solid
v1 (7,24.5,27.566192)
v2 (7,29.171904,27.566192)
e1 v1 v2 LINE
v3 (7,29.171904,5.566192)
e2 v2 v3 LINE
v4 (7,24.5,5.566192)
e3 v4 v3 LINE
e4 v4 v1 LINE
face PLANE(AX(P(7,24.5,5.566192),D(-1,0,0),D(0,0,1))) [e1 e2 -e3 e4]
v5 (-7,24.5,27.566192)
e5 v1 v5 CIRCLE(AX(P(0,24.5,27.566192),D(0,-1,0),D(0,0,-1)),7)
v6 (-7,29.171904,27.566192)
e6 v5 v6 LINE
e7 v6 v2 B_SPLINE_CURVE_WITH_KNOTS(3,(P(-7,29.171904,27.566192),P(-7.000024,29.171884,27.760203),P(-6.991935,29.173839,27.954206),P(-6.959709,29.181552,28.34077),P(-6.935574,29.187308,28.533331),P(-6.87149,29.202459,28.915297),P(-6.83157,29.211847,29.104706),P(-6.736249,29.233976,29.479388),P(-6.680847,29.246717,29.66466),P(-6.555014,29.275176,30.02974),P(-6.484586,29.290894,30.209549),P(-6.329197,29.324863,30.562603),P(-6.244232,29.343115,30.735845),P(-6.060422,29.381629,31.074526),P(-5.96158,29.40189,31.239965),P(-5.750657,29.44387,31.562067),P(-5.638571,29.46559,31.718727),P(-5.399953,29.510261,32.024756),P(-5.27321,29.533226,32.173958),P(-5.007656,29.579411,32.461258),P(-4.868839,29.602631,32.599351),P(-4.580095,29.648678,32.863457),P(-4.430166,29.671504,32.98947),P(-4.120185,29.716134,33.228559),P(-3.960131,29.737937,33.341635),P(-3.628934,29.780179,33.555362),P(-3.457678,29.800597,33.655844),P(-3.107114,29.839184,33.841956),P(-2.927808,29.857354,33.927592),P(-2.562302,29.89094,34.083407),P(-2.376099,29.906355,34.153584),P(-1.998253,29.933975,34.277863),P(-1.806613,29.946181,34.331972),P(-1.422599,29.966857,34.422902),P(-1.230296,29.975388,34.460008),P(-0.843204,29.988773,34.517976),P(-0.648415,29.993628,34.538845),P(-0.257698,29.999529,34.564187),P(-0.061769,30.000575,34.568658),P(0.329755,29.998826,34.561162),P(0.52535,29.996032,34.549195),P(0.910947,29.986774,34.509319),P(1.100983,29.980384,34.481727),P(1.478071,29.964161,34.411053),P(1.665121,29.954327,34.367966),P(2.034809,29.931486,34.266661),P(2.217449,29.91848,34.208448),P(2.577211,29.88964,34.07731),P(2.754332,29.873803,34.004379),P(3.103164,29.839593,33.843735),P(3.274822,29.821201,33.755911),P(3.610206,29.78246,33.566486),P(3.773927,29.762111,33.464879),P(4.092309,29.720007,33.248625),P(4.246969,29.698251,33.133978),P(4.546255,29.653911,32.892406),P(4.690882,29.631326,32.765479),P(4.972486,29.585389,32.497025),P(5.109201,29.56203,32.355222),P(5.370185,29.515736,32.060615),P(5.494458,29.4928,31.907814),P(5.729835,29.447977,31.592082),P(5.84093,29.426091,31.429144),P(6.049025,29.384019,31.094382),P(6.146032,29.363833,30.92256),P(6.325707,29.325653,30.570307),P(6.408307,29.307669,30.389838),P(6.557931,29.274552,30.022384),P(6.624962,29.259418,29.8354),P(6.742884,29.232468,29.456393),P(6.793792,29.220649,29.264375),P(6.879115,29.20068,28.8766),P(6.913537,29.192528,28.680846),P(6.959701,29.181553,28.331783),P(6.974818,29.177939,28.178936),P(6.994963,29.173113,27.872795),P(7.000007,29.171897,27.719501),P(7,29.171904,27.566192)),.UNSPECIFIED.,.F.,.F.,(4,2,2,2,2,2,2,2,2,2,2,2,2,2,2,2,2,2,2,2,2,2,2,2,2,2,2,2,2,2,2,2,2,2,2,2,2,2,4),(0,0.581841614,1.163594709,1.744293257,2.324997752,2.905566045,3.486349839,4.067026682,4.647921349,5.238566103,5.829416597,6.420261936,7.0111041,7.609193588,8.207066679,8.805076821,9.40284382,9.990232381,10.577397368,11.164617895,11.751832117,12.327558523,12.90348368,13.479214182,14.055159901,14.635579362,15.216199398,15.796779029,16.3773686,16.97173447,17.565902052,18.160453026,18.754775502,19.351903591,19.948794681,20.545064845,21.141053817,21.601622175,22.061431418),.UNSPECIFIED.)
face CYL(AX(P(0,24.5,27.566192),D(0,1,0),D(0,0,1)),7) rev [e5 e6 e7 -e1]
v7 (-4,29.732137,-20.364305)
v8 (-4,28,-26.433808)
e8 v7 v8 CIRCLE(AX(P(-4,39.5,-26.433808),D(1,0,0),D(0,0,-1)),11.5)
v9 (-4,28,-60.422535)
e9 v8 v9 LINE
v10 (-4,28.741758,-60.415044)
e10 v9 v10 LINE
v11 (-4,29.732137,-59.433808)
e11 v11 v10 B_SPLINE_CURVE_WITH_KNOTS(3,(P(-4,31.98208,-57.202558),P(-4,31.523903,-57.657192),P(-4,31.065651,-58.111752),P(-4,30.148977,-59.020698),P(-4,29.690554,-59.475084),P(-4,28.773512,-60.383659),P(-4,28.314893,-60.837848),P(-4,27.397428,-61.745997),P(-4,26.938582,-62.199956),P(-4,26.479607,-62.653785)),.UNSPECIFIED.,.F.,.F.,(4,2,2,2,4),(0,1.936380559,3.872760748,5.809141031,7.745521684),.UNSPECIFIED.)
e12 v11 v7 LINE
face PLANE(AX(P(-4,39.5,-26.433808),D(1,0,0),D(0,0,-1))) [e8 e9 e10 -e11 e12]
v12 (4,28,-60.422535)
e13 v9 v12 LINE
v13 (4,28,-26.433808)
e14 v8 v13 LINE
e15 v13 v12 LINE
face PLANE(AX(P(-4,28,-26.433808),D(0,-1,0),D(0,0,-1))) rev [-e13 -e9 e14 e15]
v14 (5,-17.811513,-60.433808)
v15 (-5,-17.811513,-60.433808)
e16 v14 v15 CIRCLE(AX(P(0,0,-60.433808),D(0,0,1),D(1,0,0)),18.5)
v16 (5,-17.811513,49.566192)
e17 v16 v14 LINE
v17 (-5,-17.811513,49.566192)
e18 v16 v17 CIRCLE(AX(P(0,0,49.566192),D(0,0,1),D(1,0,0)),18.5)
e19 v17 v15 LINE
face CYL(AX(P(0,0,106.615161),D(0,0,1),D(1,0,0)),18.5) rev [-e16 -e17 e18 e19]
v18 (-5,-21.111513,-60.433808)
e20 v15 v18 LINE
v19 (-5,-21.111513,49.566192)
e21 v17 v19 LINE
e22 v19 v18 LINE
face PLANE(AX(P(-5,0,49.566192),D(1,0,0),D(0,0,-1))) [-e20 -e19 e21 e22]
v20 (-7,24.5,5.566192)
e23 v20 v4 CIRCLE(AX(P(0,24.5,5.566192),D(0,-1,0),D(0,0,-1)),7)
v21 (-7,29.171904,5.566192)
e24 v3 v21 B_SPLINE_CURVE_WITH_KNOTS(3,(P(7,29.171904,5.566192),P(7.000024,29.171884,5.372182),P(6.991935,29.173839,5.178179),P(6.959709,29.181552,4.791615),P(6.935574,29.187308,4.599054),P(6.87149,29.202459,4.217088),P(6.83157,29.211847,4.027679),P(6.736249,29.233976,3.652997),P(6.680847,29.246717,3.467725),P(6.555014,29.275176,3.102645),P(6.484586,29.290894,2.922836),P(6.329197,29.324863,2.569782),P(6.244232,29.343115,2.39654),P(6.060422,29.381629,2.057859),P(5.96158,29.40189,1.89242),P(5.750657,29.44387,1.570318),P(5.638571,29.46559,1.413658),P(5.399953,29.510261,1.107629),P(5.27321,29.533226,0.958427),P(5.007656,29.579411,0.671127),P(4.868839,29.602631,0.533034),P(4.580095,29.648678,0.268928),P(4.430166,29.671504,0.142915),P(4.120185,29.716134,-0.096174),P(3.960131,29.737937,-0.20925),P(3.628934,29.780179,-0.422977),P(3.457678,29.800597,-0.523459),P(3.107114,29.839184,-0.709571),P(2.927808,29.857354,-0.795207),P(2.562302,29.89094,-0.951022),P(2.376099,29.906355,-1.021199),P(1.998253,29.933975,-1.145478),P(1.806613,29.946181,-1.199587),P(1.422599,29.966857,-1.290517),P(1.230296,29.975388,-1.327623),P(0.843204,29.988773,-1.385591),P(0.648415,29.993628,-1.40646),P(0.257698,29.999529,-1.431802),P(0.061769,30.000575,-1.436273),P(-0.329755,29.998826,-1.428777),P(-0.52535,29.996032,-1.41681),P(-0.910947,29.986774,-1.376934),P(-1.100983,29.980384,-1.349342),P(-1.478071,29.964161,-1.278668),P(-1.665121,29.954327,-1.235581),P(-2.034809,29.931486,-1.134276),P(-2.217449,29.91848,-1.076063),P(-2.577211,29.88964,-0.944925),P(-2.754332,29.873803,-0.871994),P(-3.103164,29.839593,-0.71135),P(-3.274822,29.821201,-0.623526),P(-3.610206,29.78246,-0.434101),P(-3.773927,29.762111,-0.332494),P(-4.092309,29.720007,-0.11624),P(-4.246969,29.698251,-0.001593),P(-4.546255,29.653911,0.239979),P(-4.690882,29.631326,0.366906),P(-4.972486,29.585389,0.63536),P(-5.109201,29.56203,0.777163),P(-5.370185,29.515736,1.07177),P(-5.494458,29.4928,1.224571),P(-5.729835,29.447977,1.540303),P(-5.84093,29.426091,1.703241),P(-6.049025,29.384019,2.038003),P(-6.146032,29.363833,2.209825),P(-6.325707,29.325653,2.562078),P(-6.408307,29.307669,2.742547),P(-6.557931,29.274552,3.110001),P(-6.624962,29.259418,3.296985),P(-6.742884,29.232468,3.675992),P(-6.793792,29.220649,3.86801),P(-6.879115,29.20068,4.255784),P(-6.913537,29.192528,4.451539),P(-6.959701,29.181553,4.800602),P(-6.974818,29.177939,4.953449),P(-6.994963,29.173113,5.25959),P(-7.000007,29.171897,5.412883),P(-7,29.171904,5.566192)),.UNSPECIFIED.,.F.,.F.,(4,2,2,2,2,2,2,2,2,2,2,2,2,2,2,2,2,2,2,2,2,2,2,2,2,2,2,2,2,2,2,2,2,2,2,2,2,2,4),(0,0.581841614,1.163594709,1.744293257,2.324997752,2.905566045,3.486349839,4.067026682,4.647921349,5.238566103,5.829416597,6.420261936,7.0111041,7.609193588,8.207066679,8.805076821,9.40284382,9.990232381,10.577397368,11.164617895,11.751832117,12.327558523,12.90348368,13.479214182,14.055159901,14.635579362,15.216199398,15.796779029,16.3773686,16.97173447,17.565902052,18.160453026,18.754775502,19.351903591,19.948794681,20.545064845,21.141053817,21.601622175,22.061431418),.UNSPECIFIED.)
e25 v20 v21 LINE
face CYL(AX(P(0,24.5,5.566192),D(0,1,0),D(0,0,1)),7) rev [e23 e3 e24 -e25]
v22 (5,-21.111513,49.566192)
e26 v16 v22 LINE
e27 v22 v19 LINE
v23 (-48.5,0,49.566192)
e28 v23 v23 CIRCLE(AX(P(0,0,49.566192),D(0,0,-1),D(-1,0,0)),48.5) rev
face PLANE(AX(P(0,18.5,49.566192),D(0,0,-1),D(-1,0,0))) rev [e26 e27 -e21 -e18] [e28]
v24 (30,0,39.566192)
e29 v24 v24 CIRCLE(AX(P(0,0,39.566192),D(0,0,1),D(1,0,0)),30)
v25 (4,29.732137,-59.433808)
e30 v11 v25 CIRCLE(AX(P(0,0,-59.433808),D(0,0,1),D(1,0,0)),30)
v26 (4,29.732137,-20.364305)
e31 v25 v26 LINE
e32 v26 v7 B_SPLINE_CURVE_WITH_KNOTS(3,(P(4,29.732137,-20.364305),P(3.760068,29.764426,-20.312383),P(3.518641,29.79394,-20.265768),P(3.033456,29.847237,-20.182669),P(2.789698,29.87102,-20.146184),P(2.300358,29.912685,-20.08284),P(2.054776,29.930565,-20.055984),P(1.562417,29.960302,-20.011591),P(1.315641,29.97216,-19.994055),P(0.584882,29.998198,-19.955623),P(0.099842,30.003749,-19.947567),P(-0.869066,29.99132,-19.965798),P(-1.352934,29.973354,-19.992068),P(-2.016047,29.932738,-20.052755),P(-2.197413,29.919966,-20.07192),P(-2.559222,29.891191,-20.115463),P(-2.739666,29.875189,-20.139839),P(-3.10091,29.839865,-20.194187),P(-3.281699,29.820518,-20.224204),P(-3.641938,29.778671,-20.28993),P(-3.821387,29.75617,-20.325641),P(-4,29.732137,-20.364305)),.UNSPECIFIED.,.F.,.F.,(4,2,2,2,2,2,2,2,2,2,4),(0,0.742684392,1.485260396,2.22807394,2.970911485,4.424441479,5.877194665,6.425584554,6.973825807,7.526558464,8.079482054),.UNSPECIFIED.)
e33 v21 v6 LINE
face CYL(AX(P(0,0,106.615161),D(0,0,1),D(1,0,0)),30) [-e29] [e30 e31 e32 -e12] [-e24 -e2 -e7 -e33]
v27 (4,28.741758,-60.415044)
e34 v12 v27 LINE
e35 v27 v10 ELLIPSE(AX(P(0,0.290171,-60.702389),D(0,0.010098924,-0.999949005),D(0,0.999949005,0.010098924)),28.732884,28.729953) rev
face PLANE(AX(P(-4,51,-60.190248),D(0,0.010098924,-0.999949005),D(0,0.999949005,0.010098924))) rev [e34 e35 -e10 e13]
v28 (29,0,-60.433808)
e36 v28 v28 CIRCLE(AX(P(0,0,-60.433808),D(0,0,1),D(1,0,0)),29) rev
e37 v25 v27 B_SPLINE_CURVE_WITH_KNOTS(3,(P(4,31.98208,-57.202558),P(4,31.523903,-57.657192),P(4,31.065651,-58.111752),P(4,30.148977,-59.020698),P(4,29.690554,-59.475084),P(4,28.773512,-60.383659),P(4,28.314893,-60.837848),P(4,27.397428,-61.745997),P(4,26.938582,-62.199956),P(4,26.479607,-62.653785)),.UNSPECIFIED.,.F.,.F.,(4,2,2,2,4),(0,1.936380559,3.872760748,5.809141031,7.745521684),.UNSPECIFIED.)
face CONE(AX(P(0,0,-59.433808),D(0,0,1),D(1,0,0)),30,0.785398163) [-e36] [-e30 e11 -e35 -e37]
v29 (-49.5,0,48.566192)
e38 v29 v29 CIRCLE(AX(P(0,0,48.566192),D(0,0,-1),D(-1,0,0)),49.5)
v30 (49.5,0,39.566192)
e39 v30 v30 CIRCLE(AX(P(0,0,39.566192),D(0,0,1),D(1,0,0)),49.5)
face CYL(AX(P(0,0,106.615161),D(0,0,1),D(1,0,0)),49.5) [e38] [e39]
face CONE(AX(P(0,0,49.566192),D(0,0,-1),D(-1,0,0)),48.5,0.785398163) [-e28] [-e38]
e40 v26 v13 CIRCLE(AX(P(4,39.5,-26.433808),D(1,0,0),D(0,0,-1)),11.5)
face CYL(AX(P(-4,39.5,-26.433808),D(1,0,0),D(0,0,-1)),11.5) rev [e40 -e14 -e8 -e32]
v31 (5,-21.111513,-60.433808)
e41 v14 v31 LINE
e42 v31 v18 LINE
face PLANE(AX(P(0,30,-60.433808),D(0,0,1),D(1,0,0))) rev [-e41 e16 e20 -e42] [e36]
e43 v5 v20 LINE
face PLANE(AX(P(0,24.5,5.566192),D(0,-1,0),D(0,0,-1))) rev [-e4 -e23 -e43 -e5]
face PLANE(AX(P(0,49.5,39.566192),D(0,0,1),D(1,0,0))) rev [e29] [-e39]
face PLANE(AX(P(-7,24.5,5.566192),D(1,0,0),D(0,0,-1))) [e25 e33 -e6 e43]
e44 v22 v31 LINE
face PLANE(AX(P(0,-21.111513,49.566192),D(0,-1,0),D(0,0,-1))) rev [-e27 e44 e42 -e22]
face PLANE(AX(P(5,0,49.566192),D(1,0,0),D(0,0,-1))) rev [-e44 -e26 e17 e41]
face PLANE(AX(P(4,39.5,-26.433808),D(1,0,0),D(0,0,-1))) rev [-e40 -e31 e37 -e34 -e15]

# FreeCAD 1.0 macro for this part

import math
import FreeCAD as App
import Part
import Sketcher
from FreeCAD import Vector


def edges_at(feature, points):
    """Names of the edges that pass closest to the given points."""
    edges = feature.Shape.Edges
    near = lambda p: min(range(len(edges)), key=lambda i: edges[i].distToShape(Part.Vertex(*p))[0])
    return sorted({f"Edge{near(p) + 1}" for p in points})


def add_polygon(sketch, points):
    """Adds a closed chain of lines whose ends are joined by coincident constraints."""
    first, n = sketch.GeometryCount, len(points)
    for a, b in zip(points, points[1:] + points[:1]):
        sketch.addGeometry(Part.LineSegment(App.Vector(*a, 0), App.Vector(*b, 0)), False)
    for i in range(n):
        sketch.addConstraint(Sketcher.Constraint("Coincident", first + i, 2, first + (i + 1) % n, 1))

doc = App.newDocument("Part")
params = doc.addObject("Spreadsheet::Sheet", "Params")
for row, (alias, value) in enumerate([
    ("sketch1_width", "31 mm"),
    ("sketch1_height", "10 mm"),
    ("sketch1_height2", "110 mm"),
    ("sketch1_width2", "11.5 mm"),
    ("revolution_angle", "360 deg"),
    ("sketch2_radius", "18.5 mm"),
    ("sketch2_width", "10 mm"),
    ("sketch2_height", "3.3 mm"),
    ("sketch3_radius", "7 mm"),
    ("sketch3_height", "22 mm"),
    ("pocket2_length", "5.5 mm"),
    ("chamfer_size", "1 mm"),
    ("sketch4_radius", "11.5 mm"),
    ("pocket3_length", "8 mm"),
], start=1):
    params.set(f"A{row}", alias)
    params.set(f"B{row}", "=" + value)
    params.setAlias(f"B{row}", alias)

body = doc.addObject("PartDesign::Body", "Body")

# Sketch on YZ plane
sketch1 = doc.addObject("Sketcher::SketchObject", "Sketch")
body.addObject(sketch1)
sketch1.AttachmentSupport = (doc.YZ_Plane, [""])
sketch1.MapMode = "FlatFace"
add_polygon(sketch1, [(49.5, 39.566192), (49.5, 49.566192), (18.5, 49.566192), (18.5, -60.433808), (30, -60.433808), (30, 39.566192)])  # lines 0-5
sketch1.addConstraint([
    Sketcher.Constraint("Vertical", 0),
    Sketcher.Constraint("Horizontal", 1),
    Sketcher.Constraint("Vertical", 2),
    Sketcher.Constraint("Horizontal", 3),
    Sketcher.Constraint("Vertical", 4),
    Sketcher.Constraint("Horizontal", 5),
    Sketcher.Constraint("DistanceX", 1, 2, 1, 1, 31.0),
    Sketcher.Constraint("DistanceY", 0, 1, 0, 2, 10.0),
    Sketcher.Constraint("DistanceY", 2, 2, 2, 1, 110.0),
    Sketcher.Constraint("DistanceX", 3, 1, 3, 2, 11.5),
    Sketcher.Constraint("DistanceX", -1, 1, 3, 2, 30.0),
    Sketcher.Constraint("DistanceY", -1, 1, 0, 2, 49.566192),
])
sketch1.setExpression("Constraints[12]", "Params.sketch1_width")
sketch1.setExpression("Constraints[13]", "Params.sketch1_height")
sketch1.setExpression("Constraints[14]", "Params.sketch1_height2")
sketch1.setExpression("Constraints[15]", "Params.sketch1_width2")
revolution = doc.addObject("PartDesign::Revolution", "Revolution")
body.addObject(revolution)
revolution.Profile = sketch1
revolution.ReferenceAxis = (sketch1, ["V_Axis"])
revolution.setExpression("Angle", "Params.revolution_angle")

# Sketch on XY plane
sketch2 = doc.addObject("Sketcher::SketchObject", "Sketch001")
body.addObject(sketch2)
sketch2.AttachmentSupport = (doc.XY_Plane, [""])
sketch2.MapMode = "FlatFace"
sketch2.AttachmentOffset = App.Placement(Vector(0, 0, -60.433808), App.Rotation())
sketch2.addGeometry([
    Part.ArcOfCircle(Part.Circle(Vector(0, 0, 0), Vector(0, 0, 1), 18.5), math.radians(-90), math.radians(-74.31965)),  # 0
    Part.LineSegment(Vector(5, -17.811513, 0), Vector(5, -21.111513, 0)),  # 1
    Part.LineSegment(Vector(5, -21.111513, 0), Vector(-5, -21.111513, 0)),  # 2
    Part.LineSegment(Vector(-5, -21.111513, 0), Vector(-5, -17.811513, 0)),  # 3
    Part.ArcOfCircle(Part.Circle(Vector(0, 0, 0), Vector(0, 0, 1), 18.5), math.radians(-105.68035), math.radians(-90)),  # 4
], False)
sketch2.addConstraint([
    Sketcher.Constraint("Coincident", 0, 2, 1, 1),
    Sketcher.Constraint("Coincident", 1, 2, 2, 1),
    Sketcher.Constraint("Coincident", 2, 2, 3, 1),
    Sketcher.Constraint("Coincident", 3, 2, 4, 1),
    Sketcher.Constraint("Tangent", 4, 2, 0, 1),
    Sketcher.Constraint("Vertical", 1),
    Sketcher.Constraint("Horizontal", 2),
    Sketcher.Constraint("Vertical", 3),
    Sketcher.Constraint("Coincident", 0, 3, -1, 1),
    Sketcher.Constraint("Equal", 0, 4),
    Sketcher.Constraint("PointOnObject", 4, 2, -2),
    Sketcher.Constraint("Horizontal", 0, 2, 3, 2),
    Sketcher.Constraint("Radius", 0, 18.5),
    Sketcher.Constraint("DistanceX", 2, 2, 2, 1, 10.0),
    Sketcher.Constraint("DistanceY", 1, 2, 1, 1, 3.3),
])
sketch2.setExpression("Constraints[12]", "Params.sketch2_radius")
sketch2.setExpression("Constraints[13]", "Params.sketch2_width")
sketch2.setExpression("Constraints[14]", "Params.sketch2_height")
pocket1 = doc.addObject("PartDesign::Pocket", "Pocket")
body.addObject(pocket1)
pocket1.Profile = sketch2
pocket1.Type = "ThroughAll"
pocket1.Reversed = True

# Sketch on XZ plane
sketch3 = doc.addObject("Sketcher::SketchObject", "Sketch002")
body.addObject(sketch3)
sketch3.AttachmentSupport = (doc.XZ_Plane, [""])
sketch3.MapMode = "FlatFace"
sketch3.AttachmentOffset = App.Placement(Vector(0, 0, -30), App.Rotation())
sketch3.addGeometry([
    Part.LineSegment(Vector(-7, 27.566192, 0), Vector(-7, 5.566192, 0)),
    Part.ArcOfCircle(Part.Circle(Vector(0, 5.566192, 0), Vector(0, 0, 1), 7), math.radians(180), math.radians(360)),
    Part.LineSegment(Vector(7, 5.566192, 0), Vector(7, 27.566192, 0)),
    Part.ArcOfCircle(Part.Circle(Vector(0, 27.566192, 0), Vector(0, 0, 1), 7), math.radians(0), math.radians(180)),
], False)
sketch3.addConstraint([
    Sketcher.Constraint("Tangent", 0, 2, 1, 1),
    Sketcher.Constraint("Tangent", 1, 2, 2, 1),
    Sketcher.Constraint("Tangent", 2, 2, 3, 1),
    Sketcher.Constraint("Tangent", 3, 2, 0, 1),
    Sketcher.Constraint("Vertical", 0),
    Sketcher.Constraint("Vertical", 2),
    Sketcher.Constraint("PointOnObject", 1, 3, -2),
    Sketcher.Constraint("Radius", 1, 7.0),
    Sketcher.Constraint("DistanceY", 0, 2, 0, 1, 22.0),
    Sketcher.Constraint("DistanceY", -1, 1, 1, 3, 5.566192),
])
sketch3.setExpression("Constraints[7]", "Params.sketch3_radius")
sketch3.setExpression("Constraints[8]", "Params.sketch3_height")
pocket2 = doc.addObject("PartDesign::Pocket", "Pocket001")
body.addObject(pocket2)
pocket2.Profile = sketch3
pocket2.setExpression("Length", "Params.pocket2_length")
pocket2.Reversed = True
doc.recompute()

chamfer = doc.addObject("PartDesign::Chamfer", "Chamfer")
body.addObject(chamfer)
chamfer.Base = (pocket2, edges_at(pocket2, [(-30, 0, -60.434), (-49.5, 0, 49.566)]))
chamfer.setExpression("Size", "Params.chamfer_size")

# Sketch on YZ plane
sketch4 = doc.addObject("Sketcher::SketchObject", "Sketch003")
body.addObject(sketch4)
sketch4.AttachmentSupport = (doc.YZ_Plane, [""])
sketch4.MapMode = "FlatFace"
sketch4.addGeometry([
    Part.LineSegment(Vector(51, -60.190248, 0), Vector(51, -26.433808, 0)),
    Part.ArcOfCircle(Part.Circle(Vector(39.5, -26.433808, 0), Vector(0, 0, 1), 11.5), math.radians(0), math.radians(180)),
    Part.LineSegment(Vector(28, -26.433808, 0), Vector(28, -60.422535, 0)),
    Part.LineSegment(Vector(28, -60.422535, 0), Vector(51, -60.190248, 0)),
], False)
sketch4.addConstraint([
    Sketcher.Constraint("Tangent", 0, 2, 1, 1),
    Sketcher.Constraint("Tangent", 1, 2, 2, 1),
    Sketcher.Constraint("Coincident", 2, 2, 3, 1),
    Sketcher.Constraint("Coincident", 3, 2, 0, 1),
    Sketcher.Constraint("Vertical", 0),
    Sketcher.Constraint("Vertical", 2),
    Sketcher.Constraint("Radius", 1, 11.5),
    Sketcher.Constraint("DistanceX", -1, 1, 0, 2, 51.0),
    Sketcher.Constraint("DistanceY", 0, 1, 0, 2, 33.756441),
    Sketcher.Constraint("DistanceY", 2, 2, 2, 1, 33.988728),
    Sketcher.Constraint("DistanceY", 3, 2, -1, 1, 60.190248),
])
sketch4.setExpression("Constraints[6]", "Params.sketch4_radius")
pocket3 = doc.addObject("PartDesign::Pocket", "Pocket002")
body.addObject(pocket3)
pocket3.Profile = sketch4
pocket3.setExpression("Length", "Params.pocket3_length")
pocket3.Midplane = True

doc.recompute()
